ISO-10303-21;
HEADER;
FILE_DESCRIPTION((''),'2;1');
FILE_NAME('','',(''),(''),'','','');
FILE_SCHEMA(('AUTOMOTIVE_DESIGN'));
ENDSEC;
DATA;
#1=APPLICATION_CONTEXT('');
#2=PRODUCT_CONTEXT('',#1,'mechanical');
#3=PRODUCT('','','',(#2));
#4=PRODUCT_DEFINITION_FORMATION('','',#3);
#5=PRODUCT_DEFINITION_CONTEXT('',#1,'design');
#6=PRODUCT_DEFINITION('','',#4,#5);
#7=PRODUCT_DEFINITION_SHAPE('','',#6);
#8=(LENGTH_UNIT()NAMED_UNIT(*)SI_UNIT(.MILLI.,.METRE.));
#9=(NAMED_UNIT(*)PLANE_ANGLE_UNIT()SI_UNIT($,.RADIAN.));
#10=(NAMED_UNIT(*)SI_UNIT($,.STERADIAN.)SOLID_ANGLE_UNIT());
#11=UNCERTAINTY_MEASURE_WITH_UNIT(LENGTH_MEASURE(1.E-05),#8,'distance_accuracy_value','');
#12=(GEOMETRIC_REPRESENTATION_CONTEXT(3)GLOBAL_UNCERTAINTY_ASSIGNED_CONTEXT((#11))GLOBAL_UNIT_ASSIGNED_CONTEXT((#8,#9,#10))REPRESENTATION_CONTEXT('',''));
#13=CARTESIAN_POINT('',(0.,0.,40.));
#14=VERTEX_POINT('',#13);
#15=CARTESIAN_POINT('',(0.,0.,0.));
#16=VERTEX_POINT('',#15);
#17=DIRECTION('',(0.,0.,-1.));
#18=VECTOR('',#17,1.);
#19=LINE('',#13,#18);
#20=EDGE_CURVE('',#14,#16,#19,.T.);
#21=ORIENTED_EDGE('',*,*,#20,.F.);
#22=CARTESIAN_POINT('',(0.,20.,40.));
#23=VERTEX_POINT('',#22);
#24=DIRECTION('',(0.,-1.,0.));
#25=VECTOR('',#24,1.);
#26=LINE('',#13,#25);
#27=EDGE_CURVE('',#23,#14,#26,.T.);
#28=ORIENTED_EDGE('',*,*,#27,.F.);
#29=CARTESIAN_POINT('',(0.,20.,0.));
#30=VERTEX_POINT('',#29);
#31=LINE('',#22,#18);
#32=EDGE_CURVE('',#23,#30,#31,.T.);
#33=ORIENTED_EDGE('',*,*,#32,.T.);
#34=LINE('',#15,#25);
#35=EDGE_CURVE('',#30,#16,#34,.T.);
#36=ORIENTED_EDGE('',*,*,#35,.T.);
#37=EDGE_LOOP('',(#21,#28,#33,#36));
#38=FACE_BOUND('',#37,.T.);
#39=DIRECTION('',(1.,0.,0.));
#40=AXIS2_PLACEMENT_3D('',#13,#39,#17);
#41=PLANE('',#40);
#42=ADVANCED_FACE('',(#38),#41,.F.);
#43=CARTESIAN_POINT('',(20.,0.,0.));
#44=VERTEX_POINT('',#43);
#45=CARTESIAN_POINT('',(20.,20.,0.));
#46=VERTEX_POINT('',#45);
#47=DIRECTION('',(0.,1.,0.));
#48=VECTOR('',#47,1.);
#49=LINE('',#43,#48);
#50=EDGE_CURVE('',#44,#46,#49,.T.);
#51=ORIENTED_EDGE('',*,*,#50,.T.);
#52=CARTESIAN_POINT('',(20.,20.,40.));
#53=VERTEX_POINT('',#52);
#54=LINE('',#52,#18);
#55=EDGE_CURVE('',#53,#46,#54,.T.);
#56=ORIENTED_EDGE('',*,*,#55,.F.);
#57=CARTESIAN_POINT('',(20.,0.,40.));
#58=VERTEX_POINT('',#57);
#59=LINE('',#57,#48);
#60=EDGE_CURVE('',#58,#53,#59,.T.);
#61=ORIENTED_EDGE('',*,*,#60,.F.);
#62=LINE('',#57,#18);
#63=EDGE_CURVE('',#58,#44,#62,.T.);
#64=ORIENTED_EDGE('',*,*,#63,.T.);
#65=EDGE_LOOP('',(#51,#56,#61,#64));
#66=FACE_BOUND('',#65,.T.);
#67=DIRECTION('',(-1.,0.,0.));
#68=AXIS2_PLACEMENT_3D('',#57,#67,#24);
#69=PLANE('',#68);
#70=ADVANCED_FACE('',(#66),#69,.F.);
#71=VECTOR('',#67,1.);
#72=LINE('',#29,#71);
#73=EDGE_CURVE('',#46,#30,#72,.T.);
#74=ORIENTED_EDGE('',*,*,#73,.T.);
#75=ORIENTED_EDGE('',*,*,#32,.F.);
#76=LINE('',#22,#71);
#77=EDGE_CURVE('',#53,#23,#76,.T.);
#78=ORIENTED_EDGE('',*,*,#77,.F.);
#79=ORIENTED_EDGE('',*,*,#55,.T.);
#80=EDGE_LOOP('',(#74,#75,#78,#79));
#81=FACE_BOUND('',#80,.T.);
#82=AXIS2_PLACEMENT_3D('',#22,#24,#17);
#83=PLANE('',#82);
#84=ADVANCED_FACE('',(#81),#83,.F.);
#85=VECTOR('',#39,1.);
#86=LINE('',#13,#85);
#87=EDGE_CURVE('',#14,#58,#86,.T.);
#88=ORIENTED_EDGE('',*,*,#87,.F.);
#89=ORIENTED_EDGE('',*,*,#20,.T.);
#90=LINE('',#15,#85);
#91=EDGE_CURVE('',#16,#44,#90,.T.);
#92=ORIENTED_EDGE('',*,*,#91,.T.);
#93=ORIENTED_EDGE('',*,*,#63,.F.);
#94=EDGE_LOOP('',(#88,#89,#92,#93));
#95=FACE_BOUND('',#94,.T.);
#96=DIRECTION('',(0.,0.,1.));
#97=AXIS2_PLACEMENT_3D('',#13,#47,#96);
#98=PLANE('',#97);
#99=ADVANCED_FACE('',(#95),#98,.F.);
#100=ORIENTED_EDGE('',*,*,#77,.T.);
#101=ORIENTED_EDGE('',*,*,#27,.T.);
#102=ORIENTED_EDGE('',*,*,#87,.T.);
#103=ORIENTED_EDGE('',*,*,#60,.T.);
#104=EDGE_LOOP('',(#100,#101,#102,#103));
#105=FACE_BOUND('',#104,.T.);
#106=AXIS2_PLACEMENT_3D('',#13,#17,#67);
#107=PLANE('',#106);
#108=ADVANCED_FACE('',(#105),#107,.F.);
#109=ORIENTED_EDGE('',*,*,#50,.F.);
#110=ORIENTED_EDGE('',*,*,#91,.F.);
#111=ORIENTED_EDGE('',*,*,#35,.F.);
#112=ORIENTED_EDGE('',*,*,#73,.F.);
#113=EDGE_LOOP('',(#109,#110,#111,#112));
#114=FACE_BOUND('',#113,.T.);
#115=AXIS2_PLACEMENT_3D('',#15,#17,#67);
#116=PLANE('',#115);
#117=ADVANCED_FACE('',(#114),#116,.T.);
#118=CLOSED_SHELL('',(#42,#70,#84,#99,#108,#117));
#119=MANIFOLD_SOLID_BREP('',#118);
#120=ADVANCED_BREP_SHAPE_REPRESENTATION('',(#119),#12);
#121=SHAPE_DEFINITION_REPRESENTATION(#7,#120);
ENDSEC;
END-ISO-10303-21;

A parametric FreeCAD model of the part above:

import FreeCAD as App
import Part
import Sketcher

doc = App.newDocument("Part")
body = doc.addObject("PartDesign::Body", "Body")

# Sketch on XY plane
sketch1 = body.newObject("Sketcher::SketchObject", "Sketch")
sketch1.AttachmentSupport = (doc.getObject("XY_Plane"), [""])
sketch1.MapMode = "FlatFace"
sketch1.addGeometry([
    Part.LineSegment(App.Vector(0, 20, 0), App.Vector(0, 0, 0)),
    Part.LineSegment(App.Vector(0, 0, 0), App.Vector(20, 0, 0)),
    Part.LineSegment(App.Vector(20, 0, 0), App.Vector(20, 20, 0)),
    Part.LineSegment(App.Vector(20, 20, 0), App.Vector(0, 20, 0)),
], False)
sketch1.addConstraint([
    Sketcher.Constraint("Coincident", 0, 2, 1, 1),
    Sketcher.Constraint("Coincident", 1, 2, 2, 1),
    Sketcher.Constraint("Coincident", 2, 2, 3, 1),
    Sketcher.Constraint("Coincident", 3, 2, 0, 1),
    Sketcher.Constraint("Vertical", 0),
    Sketcher.Constraint("Horizontal", 1),
    Sketcher.Constraint("Vertical", 2),
    Sketcher.Constraint("Horizontal", 3),
    Sketcher.Constraint("Coincident", 0, 2, -1, 1),
    Sketcher.Constraint("Equal", 3, 0),
    Sketcher.Constraint("DistanceX", 1, 1, 1, 2, 20.0),
])
pad1 = body.newObject("PartDesign::Pad", "Pad")
pad1.Profile = sketch1
pad1.Length = 40

doc.recompute()
